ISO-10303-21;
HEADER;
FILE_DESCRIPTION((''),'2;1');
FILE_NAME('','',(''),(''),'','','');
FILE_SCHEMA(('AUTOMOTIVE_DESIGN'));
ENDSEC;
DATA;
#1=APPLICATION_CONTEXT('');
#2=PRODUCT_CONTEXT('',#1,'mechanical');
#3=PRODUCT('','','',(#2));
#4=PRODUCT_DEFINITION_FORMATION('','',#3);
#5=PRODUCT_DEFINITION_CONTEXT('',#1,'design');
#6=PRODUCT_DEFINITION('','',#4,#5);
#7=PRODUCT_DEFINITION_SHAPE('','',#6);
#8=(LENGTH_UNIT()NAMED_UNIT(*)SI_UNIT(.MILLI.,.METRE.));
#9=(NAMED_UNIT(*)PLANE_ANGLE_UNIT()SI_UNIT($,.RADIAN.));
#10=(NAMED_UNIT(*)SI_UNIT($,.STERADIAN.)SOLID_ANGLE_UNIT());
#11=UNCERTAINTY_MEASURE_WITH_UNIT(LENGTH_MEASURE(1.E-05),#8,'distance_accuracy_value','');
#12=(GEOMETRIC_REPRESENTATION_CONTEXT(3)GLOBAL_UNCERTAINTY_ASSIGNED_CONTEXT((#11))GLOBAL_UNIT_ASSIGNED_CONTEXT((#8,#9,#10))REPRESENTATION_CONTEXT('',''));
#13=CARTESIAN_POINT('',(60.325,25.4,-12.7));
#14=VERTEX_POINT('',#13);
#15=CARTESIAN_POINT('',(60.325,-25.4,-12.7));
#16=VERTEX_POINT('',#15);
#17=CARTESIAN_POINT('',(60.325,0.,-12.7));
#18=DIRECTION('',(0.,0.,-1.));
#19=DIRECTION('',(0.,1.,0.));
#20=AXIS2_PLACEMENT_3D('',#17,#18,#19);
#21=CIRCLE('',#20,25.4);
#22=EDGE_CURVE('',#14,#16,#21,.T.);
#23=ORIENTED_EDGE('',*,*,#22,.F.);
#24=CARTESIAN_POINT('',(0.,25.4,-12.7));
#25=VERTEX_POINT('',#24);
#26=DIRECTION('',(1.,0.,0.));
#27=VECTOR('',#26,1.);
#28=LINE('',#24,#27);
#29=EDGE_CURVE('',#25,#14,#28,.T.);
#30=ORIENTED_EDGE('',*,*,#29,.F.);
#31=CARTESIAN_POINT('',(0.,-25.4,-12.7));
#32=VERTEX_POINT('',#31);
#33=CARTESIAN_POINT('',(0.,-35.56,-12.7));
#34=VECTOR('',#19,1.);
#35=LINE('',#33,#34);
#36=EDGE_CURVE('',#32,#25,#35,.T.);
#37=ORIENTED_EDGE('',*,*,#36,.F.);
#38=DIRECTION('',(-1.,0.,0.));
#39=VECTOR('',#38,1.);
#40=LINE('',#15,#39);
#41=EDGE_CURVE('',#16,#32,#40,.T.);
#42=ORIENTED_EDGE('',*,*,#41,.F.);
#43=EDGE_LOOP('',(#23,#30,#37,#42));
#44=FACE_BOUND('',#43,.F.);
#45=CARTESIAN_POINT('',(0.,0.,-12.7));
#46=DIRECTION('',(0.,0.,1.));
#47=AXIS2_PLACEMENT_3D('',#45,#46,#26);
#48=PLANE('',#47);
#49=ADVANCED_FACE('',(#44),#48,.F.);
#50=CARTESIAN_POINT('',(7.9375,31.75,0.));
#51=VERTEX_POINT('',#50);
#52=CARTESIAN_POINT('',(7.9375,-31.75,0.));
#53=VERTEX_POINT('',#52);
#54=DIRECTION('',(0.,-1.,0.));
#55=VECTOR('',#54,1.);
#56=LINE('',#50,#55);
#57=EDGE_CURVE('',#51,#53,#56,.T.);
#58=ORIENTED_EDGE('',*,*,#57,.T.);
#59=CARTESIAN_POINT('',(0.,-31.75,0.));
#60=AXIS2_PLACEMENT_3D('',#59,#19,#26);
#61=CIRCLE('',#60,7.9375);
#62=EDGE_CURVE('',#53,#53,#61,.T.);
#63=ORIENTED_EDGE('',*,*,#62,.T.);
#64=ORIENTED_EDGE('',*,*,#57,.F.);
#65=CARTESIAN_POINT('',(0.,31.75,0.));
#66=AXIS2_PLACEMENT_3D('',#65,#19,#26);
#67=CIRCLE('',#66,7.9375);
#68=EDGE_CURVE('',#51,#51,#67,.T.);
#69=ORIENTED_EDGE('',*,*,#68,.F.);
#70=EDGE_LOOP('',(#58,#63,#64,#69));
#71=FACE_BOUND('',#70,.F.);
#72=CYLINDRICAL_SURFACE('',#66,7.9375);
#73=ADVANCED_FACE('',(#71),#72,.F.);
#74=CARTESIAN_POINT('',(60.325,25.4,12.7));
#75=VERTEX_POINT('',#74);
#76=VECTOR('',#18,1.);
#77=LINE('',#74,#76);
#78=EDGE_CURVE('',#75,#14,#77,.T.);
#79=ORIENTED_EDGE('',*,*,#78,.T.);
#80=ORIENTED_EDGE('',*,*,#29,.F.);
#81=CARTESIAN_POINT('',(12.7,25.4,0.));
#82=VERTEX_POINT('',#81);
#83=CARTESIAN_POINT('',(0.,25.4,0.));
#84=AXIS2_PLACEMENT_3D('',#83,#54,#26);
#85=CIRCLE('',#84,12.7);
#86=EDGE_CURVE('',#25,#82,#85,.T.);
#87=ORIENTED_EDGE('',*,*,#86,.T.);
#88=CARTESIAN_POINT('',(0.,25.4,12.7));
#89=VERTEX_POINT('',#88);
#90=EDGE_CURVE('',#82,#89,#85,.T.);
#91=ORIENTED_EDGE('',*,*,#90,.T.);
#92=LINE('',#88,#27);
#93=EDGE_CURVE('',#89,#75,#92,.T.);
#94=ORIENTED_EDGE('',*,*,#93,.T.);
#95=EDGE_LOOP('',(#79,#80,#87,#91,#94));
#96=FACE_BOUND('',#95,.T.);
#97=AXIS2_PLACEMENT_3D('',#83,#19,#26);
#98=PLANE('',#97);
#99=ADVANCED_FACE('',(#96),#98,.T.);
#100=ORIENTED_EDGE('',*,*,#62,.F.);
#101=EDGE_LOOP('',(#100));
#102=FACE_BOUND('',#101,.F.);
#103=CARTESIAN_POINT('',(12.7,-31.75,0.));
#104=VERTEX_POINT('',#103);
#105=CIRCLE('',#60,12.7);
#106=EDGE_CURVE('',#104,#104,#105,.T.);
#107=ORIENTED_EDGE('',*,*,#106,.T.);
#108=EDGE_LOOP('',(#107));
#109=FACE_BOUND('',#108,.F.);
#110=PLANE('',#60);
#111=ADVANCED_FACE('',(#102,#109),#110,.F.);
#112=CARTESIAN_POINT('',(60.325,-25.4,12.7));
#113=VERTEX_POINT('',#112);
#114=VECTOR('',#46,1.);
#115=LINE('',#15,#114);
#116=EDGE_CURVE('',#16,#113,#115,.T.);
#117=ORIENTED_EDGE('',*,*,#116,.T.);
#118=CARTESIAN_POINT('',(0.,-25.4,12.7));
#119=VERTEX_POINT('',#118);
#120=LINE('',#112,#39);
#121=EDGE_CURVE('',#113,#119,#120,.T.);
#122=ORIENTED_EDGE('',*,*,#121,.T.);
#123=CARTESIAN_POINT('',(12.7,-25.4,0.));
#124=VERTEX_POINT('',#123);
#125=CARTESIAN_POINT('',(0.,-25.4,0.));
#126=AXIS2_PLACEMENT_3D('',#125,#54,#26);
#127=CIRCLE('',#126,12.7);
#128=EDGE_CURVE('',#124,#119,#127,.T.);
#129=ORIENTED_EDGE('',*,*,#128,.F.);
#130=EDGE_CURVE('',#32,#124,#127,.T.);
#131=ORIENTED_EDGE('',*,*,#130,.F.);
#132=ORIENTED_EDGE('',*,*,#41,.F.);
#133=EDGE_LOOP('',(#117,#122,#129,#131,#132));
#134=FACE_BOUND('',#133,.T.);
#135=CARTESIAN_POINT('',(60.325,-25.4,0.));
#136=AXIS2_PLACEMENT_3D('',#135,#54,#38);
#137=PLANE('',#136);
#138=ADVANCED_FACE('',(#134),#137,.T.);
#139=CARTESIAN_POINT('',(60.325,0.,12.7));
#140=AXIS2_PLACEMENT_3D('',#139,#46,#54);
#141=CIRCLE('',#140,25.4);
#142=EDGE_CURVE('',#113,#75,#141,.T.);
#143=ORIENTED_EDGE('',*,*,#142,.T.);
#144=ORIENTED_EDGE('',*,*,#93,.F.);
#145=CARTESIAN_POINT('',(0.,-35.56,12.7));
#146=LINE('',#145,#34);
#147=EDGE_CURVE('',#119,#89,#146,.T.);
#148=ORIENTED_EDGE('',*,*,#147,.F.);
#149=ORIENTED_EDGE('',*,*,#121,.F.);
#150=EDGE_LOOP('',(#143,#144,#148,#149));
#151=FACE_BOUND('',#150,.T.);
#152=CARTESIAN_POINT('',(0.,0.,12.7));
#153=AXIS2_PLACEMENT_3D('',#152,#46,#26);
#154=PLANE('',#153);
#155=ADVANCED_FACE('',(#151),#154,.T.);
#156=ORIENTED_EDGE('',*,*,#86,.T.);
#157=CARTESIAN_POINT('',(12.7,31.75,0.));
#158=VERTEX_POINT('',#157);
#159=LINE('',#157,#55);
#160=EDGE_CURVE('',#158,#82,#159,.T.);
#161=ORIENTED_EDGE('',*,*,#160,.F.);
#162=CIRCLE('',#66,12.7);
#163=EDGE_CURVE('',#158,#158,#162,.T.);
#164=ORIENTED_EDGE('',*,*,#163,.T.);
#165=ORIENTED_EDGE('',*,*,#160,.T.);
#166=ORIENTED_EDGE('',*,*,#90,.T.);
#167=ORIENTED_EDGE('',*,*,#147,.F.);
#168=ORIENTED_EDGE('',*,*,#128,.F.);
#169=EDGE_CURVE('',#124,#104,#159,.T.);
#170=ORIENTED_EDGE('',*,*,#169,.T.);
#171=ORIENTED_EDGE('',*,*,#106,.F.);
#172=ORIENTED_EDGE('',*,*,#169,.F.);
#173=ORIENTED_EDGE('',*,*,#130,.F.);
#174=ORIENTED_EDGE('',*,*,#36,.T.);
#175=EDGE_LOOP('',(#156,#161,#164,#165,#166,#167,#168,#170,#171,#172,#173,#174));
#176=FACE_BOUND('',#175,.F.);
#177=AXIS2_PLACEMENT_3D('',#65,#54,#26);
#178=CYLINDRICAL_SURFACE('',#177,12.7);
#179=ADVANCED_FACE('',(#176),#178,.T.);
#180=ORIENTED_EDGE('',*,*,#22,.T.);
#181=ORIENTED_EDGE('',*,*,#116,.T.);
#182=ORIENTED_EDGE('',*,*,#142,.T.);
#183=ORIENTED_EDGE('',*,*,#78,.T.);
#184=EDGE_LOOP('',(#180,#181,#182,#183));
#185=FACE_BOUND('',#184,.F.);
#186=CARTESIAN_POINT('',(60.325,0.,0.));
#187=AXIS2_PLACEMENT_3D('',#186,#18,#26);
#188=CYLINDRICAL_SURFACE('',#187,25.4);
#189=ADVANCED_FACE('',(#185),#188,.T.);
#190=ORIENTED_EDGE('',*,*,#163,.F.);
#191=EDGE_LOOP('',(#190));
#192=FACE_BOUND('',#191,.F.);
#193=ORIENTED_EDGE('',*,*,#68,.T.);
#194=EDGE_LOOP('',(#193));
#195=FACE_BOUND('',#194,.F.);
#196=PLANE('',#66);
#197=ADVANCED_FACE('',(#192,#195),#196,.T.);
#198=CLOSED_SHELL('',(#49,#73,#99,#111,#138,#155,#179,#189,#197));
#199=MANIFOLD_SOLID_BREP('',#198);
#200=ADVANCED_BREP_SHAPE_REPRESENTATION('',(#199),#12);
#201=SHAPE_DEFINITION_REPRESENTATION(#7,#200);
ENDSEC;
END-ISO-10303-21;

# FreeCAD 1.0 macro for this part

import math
import FreeCAD as App
import Part
import Sketcher

V = App.Vector
Q = App.Units.Quantity


def add_polygon(sketch, points):
    """Adds a closed chain of lines whose ends are joined by coincident constraints."""
    first, n = sketch.GeometryCount, len(points)
    for a, b in zip(points, points[1:] + points[:1]):
        sketch.addGeometry(Part.LineSegment(App.Vector(*a, 0), App.Vector(*b, 0)), False)
    for i in range(n):
        sketch.addConstraint(Sketcher.Constraint("Coincident", first + i, 2, first + (i + 1) % n, 1))

doc = App.newDocument("Part")
params = doc.addObject("Spreadsheet::Sheet", "Params")
for row, (alias, value) in enumerate([
    ("sketch1_height", "2.5 in"),
    ("sketch1_width", "0.5 in"),
    ("revolution_angle", "360 deg"),
    ("sketch2_radius", "1 in"),
    ("sketch2_width", "2.375 in"),
    ("pad1_length", "1 in"),
    ("sketch3_diameter", "0.625 in"),
], start=1):
    params.set(f"A{row}", alias)
    params.set(f"B{row}", "=" + value)
    params.setAlias(f"B{row}", alias)

body = doc.addObject("PartDesign::Body", "Body")

sketch1 = body.newObject("Sketcher::SketchObject", "Sketch")
sketch1.AttachmentSupport = (doc.getObject("XY_Plane"), [""])
sketch1.MapMode = "FlatFace"
add_polygon(sketch1, [(13, 32), (0, 32), (0, -32), (13, -32)])
sketch1.addConstraint(Sketcher.Constraint("Horizontal", 0))
sketch1.addConstraint(Sketcher.Constraint("Vertical", 1))
sketch1.addConstraint(Sketcher.Constraint("Horizontal", 2))
sketch1.addConstraint(Sketcher.Constraint("Vertical", 3))
sketch1.addConstraint(Sketcher.Constraint("Symmetric", 0, 2, 1, 2, -1, 1))
sketch1.addConstraint(Sketcher.Constraint("DistanceY", 1, 2, 1, 1, Q("2.5 in")))
sketch1.addConstraint(Sketcher.Constraint("DistanceX", 0, 2, 0, 1, Q("0.5 in")))
sketch1.setExpression("Constraints[9]", "Params.sketch1_height")
sketch1.setExpression("Constraints[10]", "Params.sketch1_width")
revolution = body.newObject("PartDesign::Revolution", "Revolution")
revolution.Profile = sketch1
revolution.ReferenceAxis = (sketch1, ["V_Axis"])
revolution.setExpression("Angle", "Params.revolution_angle")

sketch2 = body.newObject("Sketcher::SketchObject", "Sketch001")
sketch2.AttachmentSupport = (doc.getObject("XY_Plane"), [""])
sketch2.MapMode = "FlatFace"
sketch2.addGeometry(Part.LineSegment(V(0, 25, 0), V(0, -25, 0)), False)
sketch2.addGeometry(Part.LineSegment(V(0, -25, 0), V(60, -25, 0)), False)
sketch2.addGeometry(Part.ArcOfCircle(Part.Circle(V(60, 0, 0), V(0, 0, 1), 25), math.radians(-90), math.radians(90)), False)
sketch2.addGeometry(Part.LineSegment(V(60, 25, 0), V(0, 25, 0)), False)
sketch2.addConstraint(Sketcher.Constraint("Coincident", 0, 2, 1, 1))
sketch2.addConstraint(Sketcher.Constraint("Tangent", 1, 2, 2, 1))
sketch2.addConstraint(Sketcher.Constraint("Tangent", 2, 2, 3, 1))
sketch2.addConstraint(Sketcher.Constraint("Coincident", 3, 2, 0, 1))
sketch2.addConstraint(Sketcher.Constraint("Vertical", 0))
sketch2.addConstraint(Sketcher.Constraint("Horizontal", 1))
sketch2.addConstraint(Sketcher.Constraint("Horizontal", 3))
sketch2.addConstraint(Sketcher.Constraint("Symmetric", 0, 2, 3, 2, -1, 1))
sketch2.addConstraint(Sketcher.Constraint("Radius", 2, Q("1 in")))
sketch2.addConstraint(Sketcher.Constraint("DistanceX", 1, 1, 1, 2, Q("2.375 in")))
sketch2.setExpression("Constraints[8]", "Params.sketch2_radius")
sketch2.setExpression("Constraints[9]", "Params.sketch2_width")
pad1 = body.newObject("PartDesign::Pad", "Pad")
pad1.Profile = sketch2
pad1.setExpression("Length", "Params.pad1_length")
pad1.Midplane = True

sketch3 = body.newObject("Sketcher::SketchObject", "Sketch002")
sketch3.AttachmentSupport = (doc.getObject("XZ_Plane"), [""])
sketch3.MapMode = "FlatFace"
sketch3.AttachmentOffset = App.Placement(V(0, 0, -1.25 * 25.4), App.Rotation())
sketch3.addGeometry(Part.Circle(V(0, 0, 0), V(0, 0, 1), 8), False)
sketch3.addConstraint(Sketcher.Constraint("Coincident", 0, 3, -1, 1))
sketch3.addConstraint(Sketcher.Constraint("Diameter", 0, Q("0.625 in")))
sketch3.setExpression("Constraints[1]", "Params.sketch3_diameter")
pocket1 = body.newObject("PartDesign::Pocket", "Pocket")
pocket1.Profile = sketch3
pocket1.Type = "ThroughAll"
pocket1.Reversed = True

doc.recompute()
